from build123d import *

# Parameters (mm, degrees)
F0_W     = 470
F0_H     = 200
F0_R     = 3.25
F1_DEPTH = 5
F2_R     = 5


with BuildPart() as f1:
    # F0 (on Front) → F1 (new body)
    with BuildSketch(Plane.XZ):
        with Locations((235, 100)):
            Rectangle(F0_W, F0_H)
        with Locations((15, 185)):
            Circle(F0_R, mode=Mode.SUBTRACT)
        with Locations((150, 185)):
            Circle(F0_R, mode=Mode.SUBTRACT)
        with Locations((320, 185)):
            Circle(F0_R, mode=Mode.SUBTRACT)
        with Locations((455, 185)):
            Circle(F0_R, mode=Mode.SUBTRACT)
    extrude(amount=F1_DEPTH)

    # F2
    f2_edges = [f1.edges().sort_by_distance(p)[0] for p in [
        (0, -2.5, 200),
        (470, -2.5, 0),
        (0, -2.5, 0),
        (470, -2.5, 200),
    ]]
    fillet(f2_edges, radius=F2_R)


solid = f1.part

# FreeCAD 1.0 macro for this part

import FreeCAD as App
import Part
import Sketcher
Q = App.Units.Quantity


def edges_at(feature, points):
    """Names of the edges that pass closest to the given points."""
    edges = feature.Shape.Edges
    near = lambda p: min(range(len(edges)), key=lambda i: edges[i].distToShape(Part.Vertex(*p))[0])
    return sorted({f"Edge{near(p) + 1}" for p in points})

doc = App.newDocument("Part")
body = doc.addObject("PartDesign::Body", "Body")

sketch1 = doc.addObject("Sketcher::SketchObject", "Sketch")
body.addObject(sketch1)
sketch1.AttachmentSupport = (doc.XZ_Plane, [""])
sketch1.MapMode = "FlatFace"
sketch1.addGeometry(Part.LineSegment(App.Vector(0, 200, 0), App.Vector(0, 0, 0)), False)
sketch1.addGeometry(Part.LineSegment(App.Vector(0, 0, 0), App.Vector(470, 0, 0)), False)
sketch1.addGeometry(Part.LineSegment(App.Vector(470, 0, 0), App.Vector(470, 200, 0)), False)
sketch1.addGeometry(Part.LineSegment(App.Vector(470, 200, 0), App.Vector(0, 200, 0)), False)
sketch1.addGeometry(Part.Circle(App.Vector(15, 185, 0), App.Vector(0, 0, 1), 3.2), False)
sketch1.addGeometry(Part.Circle(App.Vector(150, 185, 0), App.Vector(0, 0, 1), 3.2), False)
sketch1.addGeometry(Part.Circle(App.Vector(320, 185, 0), App.Vector(0, 0, 1), 3.2), False)
sketch1.addGeometry(Part.Circle(App.Vector(455, 185, 0), App.Vector(0, 0, 1), 3.2), False)
sketch1.addConstraint(Sketcher.Constraint("Coincident", 0, 2, 1, 1))
sketch1.addConstraint(Sketcher.Constraint("Coincident", 1, 2, 2, 1))
sketch1.addConstraint(Sketcher.Constraint("Coincident", 2, 2, 3, 1))
sketch1.addConstraint(Sketcher.Constraint("Coincident", 3, 2, 0, 1))
sketch1.addConstraint(Sketcher.Constraint("Vertical", 0))
sketch1.addConstraint(Sketcher.Constraint("Horizontal", 1))
sketch1.addConstraint(Sketcher.Constraint("Vertical", 2))
sketch1.addConstraint(Sketcher.Constraint("Horizontal", 3))
sketch1.addConstraint(Sketcher.Constraint("Coincident", 0, 2, -1, 1))
sketch1.addConstraint(Sketcher.Constraint("Equal", 4, 5))
sketch1.addConstraint(Sketcher.Constraint("Equal", 5, 6))
sketch1.addConstraint(Sketcher.Constraint("Equal", 6, 7))
sketch1.addConstraint(Sketcher.Constraint("Horizontal", 4, 3, 5, 3))
sketch1.addConstraint(Sketcher.Constraint("Horizontal", 5, 3, 6, 3))
sketch1.addConstraint(Sketcher.Constraint("Horizontal", 6, 3, 7, 3))
sketch1.addConstraint(Sketcher.Constraint("Diameter", 4, Q("6.5 mm")))
sketch1.addConstraint(Sketcher.Constraint("DistanceX", 1, 1, 1, 2, Q("470 mm")))
sketch1.addConstraint(Sketcher.Constraint("DistanceY", 0, 2, 0, 1, Q("200 mm")))
sketch1.addConstraint(Sketcher.Constraint("DistanceX", -1, 1, 4, 3, Q("15 mm")))
sketch1.addConstraint(Sketcher.Constraint("DistanceY", -1, 1, 4, 3, Q("185 mm")))
sketch1.addConstraint(Sketcher.Constraint("DistanceX", -1, 1, 5, 3, Q("150 mm")))
sketch1.addConstraint(Sketcher.Constraint("DistanceX", -1, 1, 6, 3, Q("320 mm")))
sketch1.addConstraint(Sketcher.Constraint("DistanceX", -1, 1, 7, 3, Q("455 mm")))
pad1 = doc.addObject("PartDesign::Pad", "Pad")
body.addObject(pad1)
pad1.Profile = sketch1
pad1.Length = 5
doc.recompute()

fillet = doc.addObject("PartDesign::Fillet", "Fillet")
body.addObject(fillet)
fillet.Base = (pad1, edges_at(pad1, [
    (0, -2.5, 200),
    (470, -2.5, 0),
    (0, -2.5, 0),
    (470, -2.5, 200),
]))
fillet.Radius = 5

doc.recompute()
